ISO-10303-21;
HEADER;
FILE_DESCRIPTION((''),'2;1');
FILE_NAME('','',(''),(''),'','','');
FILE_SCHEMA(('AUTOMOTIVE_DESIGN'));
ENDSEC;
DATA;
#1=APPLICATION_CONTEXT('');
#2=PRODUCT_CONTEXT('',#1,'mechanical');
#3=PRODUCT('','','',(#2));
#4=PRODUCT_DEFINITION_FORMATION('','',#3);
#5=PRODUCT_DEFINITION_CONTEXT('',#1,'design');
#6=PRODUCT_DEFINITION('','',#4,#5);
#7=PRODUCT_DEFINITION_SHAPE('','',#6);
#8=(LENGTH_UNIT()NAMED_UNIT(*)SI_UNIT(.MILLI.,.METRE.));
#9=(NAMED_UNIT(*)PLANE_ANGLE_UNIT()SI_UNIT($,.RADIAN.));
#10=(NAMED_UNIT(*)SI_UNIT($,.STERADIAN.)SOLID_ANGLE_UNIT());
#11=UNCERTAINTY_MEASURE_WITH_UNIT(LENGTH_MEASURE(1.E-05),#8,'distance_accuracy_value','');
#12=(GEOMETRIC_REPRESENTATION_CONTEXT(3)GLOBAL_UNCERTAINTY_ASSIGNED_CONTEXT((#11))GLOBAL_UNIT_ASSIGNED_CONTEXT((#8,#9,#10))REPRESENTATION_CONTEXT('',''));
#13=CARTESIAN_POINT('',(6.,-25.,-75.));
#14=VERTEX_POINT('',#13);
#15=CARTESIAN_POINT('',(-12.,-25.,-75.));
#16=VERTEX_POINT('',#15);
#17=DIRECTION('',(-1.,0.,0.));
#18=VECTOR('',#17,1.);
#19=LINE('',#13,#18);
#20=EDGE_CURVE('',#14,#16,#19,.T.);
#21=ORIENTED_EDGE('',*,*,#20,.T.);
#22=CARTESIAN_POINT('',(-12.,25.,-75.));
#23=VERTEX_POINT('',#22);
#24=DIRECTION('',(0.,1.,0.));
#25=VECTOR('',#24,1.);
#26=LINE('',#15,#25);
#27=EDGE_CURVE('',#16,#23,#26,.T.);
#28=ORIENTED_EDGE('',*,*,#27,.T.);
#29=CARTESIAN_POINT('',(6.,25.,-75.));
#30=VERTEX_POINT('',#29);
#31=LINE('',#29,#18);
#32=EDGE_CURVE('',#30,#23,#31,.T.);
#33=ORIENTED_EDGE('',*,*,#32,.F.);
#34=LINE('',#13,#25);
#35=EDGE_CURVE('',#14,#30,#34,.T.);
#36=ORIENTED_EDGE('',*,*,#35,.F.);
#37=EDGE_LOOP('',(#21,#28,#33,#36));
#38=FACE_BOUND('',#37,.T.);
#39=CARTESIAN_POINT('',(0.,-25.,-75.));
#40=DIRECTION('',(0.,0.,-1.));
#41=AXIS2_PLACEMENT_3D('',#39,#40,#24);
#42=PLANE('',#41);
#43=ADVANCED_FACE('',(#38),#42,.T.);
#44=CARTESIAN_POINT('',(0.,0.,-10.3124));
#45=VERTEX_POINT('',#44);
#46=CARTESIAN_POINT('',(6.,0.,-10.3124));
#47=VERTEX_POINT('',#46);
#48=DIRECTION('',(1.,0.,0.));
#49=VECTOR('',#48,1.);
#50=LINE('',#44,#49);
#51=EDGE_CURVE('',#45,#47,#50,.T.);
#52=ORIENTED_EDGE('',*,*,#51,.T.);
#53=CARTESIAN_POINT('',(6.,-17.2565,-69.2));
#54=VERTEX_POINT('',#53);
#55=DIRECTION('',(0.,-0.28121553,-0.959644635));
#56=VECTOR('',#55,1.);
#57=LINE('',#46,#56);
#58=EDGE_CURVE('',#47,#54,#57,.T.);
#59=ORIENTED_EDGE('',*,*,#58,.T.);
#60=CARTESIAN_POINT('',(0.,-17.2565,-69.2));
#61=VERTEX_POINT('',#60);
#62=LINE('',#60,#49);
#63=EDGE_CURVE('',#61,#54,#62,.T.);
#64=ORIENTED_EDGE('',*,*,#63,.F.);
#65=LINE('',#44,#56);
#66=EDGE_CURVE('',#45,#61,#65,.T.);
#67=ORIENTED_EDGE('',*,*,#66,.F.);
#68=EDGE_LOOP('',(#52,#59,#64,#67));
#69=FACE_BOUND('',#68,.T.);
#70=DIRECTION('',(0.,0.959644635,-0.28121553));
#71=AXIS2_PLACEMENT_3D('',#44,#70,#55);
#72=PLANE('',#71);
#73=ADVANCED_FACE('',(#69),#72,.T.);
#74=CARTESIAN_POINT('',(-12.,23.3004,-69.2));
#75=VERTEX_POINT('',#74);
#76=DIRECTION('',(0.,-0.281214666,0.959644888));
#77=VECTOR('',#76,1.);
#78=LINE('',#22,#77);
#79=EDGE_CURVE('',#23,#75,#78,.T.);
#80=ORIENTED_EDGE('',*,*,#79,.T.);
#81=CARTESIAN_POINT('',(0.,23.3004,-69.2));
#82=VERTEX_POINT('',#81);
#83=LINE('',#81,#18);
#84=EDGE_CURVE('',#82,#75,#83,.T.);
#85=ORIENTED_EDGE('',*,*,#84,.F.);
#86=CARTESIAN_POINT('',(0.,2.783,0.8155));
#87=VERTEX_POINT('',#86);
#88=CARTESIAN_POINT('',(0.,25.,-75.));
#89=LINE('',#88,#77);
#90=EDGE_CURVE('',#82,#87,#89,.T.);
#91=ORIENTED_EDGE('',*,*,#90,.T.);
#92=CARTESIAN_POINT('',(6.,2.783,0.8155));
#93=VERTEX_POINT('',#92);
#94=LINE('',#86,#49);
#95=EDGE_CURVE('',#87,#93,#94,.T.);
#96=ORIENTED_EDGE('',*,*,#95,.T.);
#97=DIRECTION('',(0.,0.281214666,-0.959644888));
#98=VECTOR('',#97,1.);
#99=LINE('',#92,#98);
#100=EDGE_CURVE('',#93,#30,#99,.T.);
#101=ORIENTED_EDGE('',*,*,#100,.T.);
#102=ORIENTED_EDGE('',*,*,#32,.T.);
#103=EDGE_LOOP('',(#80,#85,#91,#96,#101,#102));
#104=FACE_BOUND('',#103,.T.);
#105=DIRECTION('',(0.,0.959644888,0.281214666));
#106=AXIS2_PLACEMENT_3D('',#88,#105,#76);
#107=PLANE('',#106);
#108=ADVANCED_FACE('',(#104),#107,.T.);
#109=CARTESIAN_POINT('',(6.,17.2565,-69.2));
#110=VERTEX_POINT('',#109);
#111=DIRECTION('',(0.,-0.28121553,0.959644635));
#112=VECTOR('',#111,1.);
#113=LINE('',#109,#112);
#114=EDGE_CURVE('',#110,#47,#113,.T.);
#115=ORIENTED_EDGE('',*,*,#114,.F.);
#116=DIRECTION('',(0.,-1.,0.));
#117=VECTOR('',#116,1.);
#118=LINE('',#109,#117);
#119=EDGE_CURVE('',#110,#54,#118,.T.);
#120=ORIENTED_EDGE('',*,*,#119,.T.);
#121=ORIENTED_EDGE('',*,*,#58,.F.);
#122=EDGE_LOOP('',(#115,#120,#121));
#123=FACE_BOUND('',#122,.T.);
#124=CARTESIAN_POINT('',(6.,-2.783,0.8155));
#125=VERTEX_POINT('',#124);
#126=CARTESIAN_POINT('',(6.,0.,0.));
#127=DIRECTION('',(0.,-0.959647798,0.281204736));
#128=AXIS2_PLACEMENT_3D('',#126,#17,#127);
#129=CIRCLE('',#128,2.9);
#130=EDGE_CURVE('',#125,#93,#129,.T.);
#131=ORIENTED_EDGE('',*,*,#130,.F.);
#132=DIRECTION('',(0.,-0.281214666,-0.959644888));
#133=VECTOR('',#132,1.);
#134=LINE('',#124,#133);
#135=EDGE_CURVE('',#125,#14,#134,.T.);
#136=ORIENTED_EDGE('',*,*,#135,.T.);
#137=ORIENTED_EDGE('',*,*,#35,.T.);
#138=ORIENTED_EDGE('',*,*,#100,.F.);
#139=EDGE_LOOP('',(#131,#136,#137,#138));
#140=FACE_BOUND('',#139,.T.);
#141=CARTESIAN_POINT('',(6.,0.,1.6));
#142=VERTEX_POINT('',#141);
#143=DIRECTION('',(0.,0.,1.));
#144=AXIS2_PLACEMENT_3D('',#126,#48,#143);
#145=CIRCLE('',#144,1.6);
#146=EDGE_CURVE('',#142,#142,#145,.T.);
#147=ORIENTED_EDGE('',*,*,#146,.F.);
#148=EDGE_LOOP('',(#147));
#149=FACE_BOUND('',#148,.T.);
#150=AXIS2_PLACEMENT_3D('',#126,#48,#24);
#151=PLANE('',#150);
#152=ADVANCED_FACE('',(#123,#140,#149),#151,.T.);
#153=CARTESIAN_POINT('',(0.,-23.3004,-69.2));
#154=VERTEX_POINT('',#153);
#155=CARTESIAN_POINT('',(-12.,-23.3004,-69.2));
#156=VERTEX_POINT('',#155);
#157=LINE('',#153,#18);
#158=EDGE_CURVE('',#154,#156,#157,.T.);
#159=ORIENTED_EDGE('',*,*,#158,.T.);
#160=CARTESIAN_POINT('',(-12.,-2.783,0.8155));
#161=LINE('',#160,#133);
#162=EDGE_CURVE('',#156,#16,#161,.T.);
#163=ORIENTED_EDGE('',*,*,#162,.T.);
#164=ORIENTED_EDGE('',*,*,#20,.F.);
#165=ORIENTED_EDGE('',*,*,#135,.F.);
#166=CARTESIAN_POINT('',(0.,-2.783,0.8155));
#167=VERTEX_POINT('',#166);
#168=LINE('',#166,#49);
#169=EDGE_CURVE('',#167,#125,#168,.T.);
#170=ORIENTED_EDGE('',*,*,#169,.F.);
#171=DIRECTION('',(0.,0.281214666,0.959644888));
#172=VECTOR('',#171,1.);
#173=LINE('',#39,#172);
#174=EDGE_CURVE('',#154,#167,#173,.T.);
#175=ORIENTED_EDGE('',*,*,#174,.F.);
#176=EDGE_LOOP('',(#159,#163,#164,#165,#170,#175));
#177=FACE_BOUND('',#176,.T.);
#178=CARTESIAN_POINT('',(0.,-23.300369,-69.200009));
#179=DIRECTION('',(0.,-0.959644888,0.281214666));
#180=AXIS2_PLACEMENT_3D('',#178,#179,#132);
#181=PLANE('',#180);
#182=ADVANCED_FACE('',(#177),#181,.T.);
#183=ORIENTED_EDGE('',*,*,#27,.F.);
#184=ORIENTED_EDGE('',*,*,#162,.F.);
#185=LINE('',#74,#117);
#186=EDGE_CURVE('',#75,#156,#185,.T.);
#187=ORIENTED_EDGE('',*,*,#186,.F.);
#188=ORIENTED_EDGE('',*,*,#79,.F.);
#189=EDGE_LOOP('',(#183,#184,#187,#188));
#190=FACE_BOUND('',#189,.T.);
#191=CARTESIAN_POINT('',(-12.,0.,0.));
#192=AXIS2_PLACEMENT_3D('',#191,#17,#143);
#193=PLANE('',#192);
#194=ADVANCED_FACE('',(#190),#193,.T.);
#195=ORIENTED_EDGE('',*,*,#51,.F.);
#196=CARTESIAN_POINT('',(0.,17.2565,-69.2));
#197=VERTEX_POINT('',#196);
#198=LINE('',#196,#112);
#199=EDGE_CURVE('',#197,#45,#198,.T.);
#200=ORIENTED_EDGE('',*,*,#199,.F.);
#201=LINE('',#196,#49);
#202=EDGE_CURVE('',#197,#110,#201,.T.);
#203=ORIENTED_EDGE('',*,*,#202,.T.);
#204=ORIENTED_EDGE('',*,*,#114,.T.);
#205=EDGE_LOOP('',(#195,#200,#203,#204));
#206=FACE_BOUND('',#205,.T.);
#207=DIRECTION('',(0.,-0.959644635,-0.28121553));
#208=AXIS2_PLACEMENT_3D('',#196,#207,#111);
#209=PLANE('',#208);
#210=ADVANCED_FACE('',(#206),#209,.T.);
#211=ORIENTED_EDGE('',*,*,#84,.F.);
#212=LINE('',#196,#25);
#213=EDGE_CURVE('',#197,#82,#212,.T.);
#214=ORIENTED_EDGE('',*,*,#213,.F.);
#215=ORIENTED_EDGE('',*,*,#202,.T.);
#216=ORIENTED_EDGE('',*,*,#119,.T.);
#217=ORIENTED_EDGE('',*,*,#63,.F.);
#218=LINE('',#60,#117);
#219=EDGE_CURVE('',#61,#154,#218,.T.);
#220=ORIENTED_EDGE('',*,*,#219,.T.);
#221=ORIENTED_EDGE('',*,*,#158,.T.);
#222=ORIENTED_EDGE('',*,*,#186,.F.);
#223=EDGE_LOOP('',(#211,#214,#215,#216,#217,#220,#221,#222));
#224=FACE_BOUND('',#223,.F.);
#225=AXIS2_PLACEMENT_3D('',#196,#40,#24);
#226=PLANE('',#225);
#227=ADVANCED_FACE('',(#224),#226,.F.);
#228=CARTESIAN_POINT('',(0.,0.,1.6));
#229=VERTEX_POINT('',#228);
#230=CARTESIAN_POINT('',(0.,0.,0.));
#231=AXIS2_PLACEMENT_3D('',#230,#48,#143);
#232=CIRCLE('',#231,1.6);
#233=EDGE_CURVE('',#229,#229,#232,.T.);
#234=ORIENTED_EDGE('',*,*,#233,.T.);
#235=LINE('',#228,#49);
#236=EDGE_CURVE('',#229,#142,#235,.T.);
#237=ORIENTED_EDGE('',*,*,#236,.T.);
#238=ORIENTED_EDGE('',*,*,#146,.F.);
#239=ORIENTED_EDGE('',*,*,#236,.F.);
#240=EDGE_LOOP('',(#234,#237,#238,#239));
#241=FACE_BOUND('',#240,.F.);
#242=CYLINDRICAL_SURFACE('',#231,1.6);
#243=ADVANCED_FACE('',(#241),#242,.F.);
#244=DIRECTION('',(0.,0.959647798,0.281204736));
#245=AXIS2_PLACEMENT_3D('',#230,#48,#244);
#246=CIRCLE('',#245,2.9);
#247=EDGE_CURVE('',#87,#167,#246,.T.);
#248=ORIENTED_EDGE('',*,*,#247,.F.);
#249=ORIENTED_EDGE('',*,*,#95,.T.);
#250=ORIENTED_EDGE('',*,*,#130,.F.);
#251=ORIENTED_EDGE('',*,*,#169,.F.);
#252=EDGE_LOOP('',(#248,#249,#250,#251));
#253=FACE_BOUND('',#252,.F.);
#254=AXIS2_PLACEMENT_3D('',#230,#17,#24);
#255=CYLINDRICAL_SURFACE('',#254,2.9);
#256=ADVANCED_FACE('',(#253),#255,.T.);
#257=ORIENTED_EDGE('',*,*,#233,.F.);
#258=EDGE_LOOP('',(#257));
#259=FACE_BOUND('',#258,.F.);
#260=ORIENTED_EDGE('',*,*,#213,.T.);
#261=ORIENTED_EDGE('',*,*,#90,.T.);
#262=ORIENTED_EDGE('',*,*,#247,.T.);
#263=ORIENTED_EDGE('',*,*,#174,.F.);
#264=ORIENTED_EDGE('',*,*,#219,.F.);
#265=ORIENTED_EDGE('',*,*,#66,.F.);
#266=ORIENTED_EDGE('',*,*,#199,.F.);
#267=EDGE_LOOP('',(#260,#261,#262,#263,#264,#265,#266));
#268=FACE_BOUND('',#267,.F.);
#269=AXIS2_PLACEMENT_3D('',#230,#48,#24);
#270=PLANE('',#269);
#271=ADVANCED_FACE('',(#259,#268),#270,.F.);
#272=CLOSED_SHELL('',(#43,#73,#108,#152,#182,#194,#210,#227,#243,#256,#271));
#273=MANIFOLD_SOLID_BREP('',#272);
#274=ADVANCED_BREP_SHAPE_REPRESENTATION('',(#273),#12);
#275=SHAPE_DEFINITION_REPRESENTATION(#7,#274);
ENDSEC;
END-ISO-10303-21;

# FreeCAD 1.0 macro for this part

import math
import FreeCAD as App
import Part
import Sketcher

V = App.Vector
Q = App.Units.Quantity


def add_polygon(sketch, points):
    """Adds a closed chain of lines whose ends are joined by coincident constraints."""
    first, n = sketch.GeometryCount, len(points)
    for a, b in zip(points, points[1:] + points[:1]):
        sketch.addGeometry(Part.LineSegment(App.Vector(*a, 0), App.Vector(*b, 0)), False)
    for i in range(n):
        sketch.addConstraint(Sketcher.Constraint("Coincident", first + i, 2, first + (i + 1) % n, 1))

doc = App.newDocument("Part")
body = doc.addObject("PartDesign::Body", "Body")

# Sketch on YZ plane
sketch1 = body.newObject("Sketcher::SketchObject", "Sketch")
sketch1.AttachmentSupport = (doc.getObject("YZ_Plane"), [""])
sketch1.MapMode = "FlatFace"
sketch1.addGeometry(Part.ArcOfCircle(Part.Circle(V(0, 0, 0), V(0, 0, 1), 2.9), math.radians(16), math.radians(164)), False)  # 0
sketch1.addGeometry(Part.LineSegment(V(-2.8, 0.8, 0), V(-25, -75, 0)), False)  # 1
sketch1.addGeometry(Part.LineSegment(V(-25, -75, 0), V(25, -75, 0)), False)  # 2
sketch1.addGeometry(Part.LineSegment(V(25, -75, 0), V(2.8, 0.8, 0)), False)  # 3
add_polygon(sketch1, [(17.3, -69.2), (-17.3, -69.2), (0, -10.3)])  # lines 4-6
sketch1.addConstraint(Sketcher.Constraint("Tangent", 0, 2, 1, 1))
sketch1.addConstraint(Sketcher.Constraint("Coincident", 1, 2, 2, 1))
sketch1.addConstraint(Sketcher.Constraint("Coincident", 2, 2, 3, 1))
sketch1.addConstraint(Sketcher.Constraint("Tangent", 3, 2, 0, 1))
sketch1.addConstraint(Sketcher.Constraint("Horizontal", 2))
sketch1.addConstraint(Sketcher.Constraint("Horizontal", 4))
sketch1.addConstraint(Sketcher.Constraint("Coincident", 0, 3, -1, 1))
sketch1.addConstraint(Sketcher.Constraint("PointOnObject", 5, 2, -2))
sketch1.addConstraint(Sketcher.Constraint("Parallel", 1, 5))
sketch1.addConstraint(Sketcher.Constraint("Parallel", 3, 6))
sketch1.addConstraint(Sketcher.Constraint("Horizontal", 0, 2, 3, 2))
sketch1.addConstraint(Sketcher.Constraint("Radius", 0, Q("2.9 mm")))
sketch1.addConstraint(Sketcher.Constraint("DistanceX", 2, 1, 2, 2, Q("50 mm")))
sketch1.addConstraint(Sketcher.Constraint("DistanceY", 1, 2, -1, 1, Q("75 mm")))
sketch1.addConstraint(Sketcher.Constraint("DistanceY", 1, 2, 4, 2, Q("5.8 mm")))
sketch1.addConstraint(Sketcher.Constraint("DistanceX", 4, 2, 4, 1, Q("34.513 mm")))
pad1 = body.newObject("PartDesign::Pad", "Pad")
pad1.Profile = sketch1
pad1.Length = 6

# Sketch on YZ plane
sketch2 = body.newObject("Sketcher::SketchObject", "Sketch001")
sketch2.AttachmentSupport = (doc.getObject("YZ_Plane"), [""])
sketch2.MapMode = "FlatFace"
sketch2.addGeometry(Part.Circle(V(0, 0, 0), V(0, 0, 1), 1.6), False)
sketch2.addConstraint(Sketcher.Constraint("Coincident", 0, 3, -1, 1))
sketch2.addConstraint(Sketcher.Constraint("Diameter", 0, Q("3.2 mm")))
doc.recompute()
hole = body.newObject("PartDesign::Hole", "Hole")
hole.Profile = sketch2
hole.ThreadType = "None"
hole.Diameter = 3.2
hole.DepthType = "ThroughAll"
hole.Reversed = True

# Sketch on YZ plane
sketch3 = body.newObject("Sketcher::SketchObject", "Sketch002")
sketch3.AttachmentSupport = (doc.getObject("YZ_Plane"), [""])
sketch3.MapMode = "FlatFace"
add_polygon(sketch3, [(23, -69), (25, -75), (-25, -75), (-23, -69)])  # lines 0-3
sketch3.addConstraint(Sketcher.Constraint("Horizontal", 1))
sketch3.addConstraint(Sketcher.Constraint("Horizontal", 3))
sketch3.addConstraint(Sketcher.Constraint("Equal", 0, 2))
sketch3.addConstraint(Sketcher.Constraint("DistanceX", 1, 2, 1, 1, Q("50 mm")))
sketch3.addConstraint(Sketcher.Constraint("DistanceX", -1, 1, 0, 2, Q("25 mm")))
sketch3.addConstraint(Sketcher.Constraint("DistanceY", 0, 2, -1, 1, Q("75 mm")))
sketch3.addConstraint(Sketcher.Constraint("DistanceY", 2, 2, -1, 1, Q("69.2 mm")))
sketch3.addConstraint(Sketcher.Constraint("Distance", 0, Q("6.044 mm")))
pad2 = body.newObject("PartDesign::Pad", "Pad001")
pad2.Profile = sketch3
pad2.Length = 12
pad2.Reversed = True

doc.recompute()
